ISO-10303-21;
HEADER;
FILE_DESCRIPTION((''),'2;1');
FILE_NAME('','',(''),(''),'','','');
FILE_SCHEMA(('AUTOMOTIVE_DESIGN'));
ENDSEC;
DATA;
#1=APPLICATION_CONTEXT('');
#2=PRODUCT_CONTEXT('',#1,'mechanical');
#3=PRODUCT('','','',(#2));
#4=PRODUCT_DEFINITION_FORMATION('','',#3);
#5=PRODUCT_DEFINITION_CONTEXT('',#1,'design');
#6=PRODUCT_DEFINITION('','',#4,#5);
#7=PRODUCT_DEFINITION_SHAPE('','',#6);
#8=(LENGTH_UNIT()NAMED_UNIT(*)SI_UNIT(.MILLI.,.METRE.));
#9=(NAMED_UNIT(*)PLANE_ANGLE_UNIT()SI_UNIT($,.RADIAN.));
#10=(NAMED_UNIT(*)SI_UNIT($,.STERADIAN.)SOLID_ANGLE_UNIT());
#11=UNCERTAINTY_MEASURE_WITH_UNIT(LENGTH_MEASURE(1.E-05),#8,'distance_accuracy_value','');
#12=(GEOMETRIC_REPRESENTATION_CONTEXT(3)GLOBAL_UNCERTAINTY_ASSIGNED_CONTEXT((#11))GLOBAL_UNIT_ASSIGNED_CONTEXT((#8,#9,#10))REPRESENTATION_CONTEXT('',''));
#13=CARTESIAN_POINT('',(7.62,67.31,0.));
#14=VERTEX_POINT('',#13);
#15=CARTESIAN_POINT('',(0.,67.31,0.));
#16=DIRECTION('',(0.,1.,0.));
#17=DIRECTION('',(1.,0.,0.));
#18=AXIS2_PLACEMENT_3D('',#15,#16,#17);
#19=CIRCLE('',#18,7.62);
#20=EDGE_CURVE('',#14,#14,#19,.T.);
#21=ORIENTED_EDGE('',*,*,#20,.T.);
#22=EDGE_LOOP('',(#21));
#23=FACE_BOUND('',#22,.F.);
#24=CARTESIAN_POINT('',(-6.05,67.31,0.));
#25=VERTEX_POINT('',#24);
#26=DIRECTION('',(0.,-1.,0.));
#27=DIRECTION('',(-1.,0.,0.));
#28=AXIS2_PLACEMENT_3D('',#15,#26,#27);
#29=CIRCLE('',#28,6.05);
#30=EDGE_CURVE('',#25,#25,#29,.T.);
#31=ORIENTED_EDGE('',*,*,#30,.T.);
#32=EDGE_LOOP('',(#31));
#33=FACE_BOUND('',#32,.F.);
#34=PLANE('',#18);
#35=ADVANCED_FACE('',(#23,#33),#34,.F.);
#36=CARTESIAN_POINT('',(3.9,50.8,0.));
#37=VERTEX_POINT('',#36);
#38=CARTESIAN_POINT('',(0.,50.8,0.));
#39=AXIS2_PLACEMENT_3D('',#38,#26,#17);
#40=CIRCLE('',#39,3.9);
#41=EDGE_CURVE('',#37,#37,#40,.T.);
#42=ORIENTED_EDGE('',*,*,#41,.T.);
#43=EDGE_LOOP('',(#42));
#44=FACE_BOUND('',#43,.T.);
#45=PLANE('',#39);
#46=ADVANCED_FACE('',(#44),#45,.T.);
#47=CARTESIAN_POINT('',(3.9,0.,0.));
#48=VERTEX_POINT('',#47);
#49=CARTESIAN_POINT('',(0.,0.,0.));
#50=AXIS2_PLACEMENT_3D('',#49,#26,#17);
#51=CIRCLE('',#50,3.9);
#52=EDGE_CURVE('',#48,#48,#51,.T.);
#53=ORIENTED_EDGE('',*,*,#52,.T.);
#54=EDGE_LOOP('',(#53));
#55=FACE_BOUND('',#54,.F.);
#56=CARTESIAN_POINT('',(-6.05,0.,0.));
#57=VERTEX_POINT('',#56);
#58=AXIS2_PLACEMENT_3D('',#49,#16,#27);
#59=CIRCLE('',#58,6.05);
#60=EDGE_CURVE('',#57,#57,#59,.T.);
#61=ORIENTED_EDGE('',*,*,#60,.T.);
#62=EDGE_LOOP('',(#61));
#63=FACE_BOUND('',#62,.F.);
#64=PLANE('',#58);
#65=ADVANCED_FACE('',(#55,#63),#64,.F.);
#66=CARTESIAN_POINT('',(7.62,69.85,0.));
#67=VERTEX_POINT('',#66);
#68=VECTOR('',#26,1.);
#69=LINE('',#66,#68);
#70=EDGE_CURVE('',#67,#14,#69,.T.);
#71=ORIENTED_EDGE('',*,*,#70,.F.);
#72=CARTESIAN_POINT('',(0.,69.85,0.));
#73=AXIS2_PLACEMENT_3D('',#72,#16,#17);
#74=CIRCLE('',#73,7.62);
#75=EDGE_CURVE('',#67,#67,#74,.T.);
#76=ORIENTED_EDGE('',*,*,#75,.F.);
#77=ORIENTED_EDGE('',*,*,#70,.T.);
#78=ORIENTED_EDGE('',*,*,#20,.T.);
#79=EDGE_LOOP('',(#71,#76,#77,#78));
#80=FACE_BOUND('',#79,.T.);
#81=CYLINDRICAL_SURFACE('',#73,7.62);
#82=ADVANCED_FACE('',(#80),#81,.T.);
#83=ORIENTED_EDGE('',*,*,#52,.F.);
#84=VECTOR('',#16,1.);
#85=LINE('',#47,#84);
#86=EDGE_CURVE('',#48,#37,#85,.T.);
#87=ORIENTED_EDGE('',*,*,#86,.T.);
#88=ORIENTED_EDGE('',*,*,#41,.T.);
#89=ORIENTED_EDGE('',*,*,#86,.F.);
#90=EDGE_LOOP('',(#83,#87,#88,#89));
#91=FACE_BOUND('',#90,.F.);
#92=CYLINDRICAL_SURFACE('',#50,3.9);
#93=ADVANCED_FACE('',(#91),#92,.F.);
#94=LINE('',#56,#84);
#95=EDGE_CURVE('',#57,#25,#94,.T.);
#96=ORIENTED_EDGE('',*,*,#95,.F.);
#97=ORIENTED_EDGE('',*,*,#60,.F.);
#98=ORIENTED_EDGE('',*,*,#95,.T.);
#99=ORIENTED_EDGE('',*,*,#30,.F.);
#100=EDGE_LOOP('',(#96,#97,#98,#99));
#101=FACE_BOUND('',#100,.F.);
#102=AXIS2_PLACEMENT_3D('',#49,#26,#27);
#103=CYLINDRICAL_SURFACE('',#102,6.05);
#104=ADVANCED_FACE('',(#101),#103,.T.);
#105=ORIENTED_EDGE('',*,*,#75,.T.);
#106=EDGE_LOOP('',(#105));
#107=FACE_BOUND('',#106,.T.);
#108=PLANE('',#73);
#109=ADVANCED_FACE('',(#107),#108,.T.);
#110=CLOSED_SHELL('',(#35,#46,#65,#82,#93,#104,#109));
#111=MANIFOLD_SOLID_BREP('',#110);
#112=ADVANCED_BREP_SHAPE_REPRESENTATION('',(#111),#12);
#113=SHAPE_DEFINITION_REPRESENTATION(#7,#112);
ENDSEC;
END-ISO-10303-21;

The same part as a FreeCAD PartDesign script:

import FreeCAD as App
import Part
import Sketcher
Q = App.Units.Quantity

doc = App.newDocument("Part")
body = doc.addObject("PartDesign::Body", "Body")

# Sketch on XZ plane
sketch1 = body.newObject("Sketcher::SketchObject", "Sketch")
sketch1.AttachmentSupport = (doc.getObject("XZ_Plane"), [""])
sketch1.MapMode = "FlatFace"
sketch1.addGeometry(Part.Circle(App.Vector(0, 0, 0), App.Vector(0, 0, 1), 6), False)
sketch1.addConstraint([
    Sketcher.Constraint("Coincident", 0, 3, -1, 1),
    Sketcher.Constraint("Diameter", 0, 12.1),
])
pad1 = body.newObject("PartDesign::Pad", "Pad")
pad1.Profile = sketch1
pad1.Length = Q("2.75 in")
pad1.Reversed = True

# Sketch on XZ plane
sketch2 = body.newObject("Sketcher::SketchObject", "Sketch001")
sketch2.AttachmentSupport = (doc.getObject("XZ_Plane"), [""])
sketch2.MapMode = "FlatFace"
sketch2.AttachmentOffset = App.Placement(App.Vector(0, 0, -2.75 * 25.4), App.Rotation())
sketch2.addGeometry(Part.Circle(App.Vector(0, 0, 0), App.Vector(0, 0, 1), 8), False)
sketch2.addConstraint([
    Sketcher.Constraint("Coincident", 0, 3, -1, 1),
    Sketcher.Constraint("Diameter", 0, Q("0.6 in")),
])
pad2 = body.newObject("PartDesign::Pad", "Pad001")
pad2.Profile = sketch2
pad2.Length = Q("0.1 in")

# Sketch on XZ plane
sketch3 = body.newObject("Sketcher::SketchObject", "Sketch002")
sketch3.AttachmentSupport = (doc.getObject("XZ_Plane"), [""])
sketch3.MapMode = "FlatFace"
sketch3.addGeometry(Part.Circle(App.Vector(0, 0, 0), App.Vector(0, 0, 1), 3.9), False)
sketch3.addConstraint([
    Sketcher.Constraint("Coincident", 0, 3, -1, 1),
    Sketcher.Constraint("Diameter", 0, 7.8),
])
pocket1 = body.newObject("PartDesign::Pocket", "Pocket")
pocket1.Profile = sketch3
pocket1.Length = Q("2 in")

doc.recompute()
